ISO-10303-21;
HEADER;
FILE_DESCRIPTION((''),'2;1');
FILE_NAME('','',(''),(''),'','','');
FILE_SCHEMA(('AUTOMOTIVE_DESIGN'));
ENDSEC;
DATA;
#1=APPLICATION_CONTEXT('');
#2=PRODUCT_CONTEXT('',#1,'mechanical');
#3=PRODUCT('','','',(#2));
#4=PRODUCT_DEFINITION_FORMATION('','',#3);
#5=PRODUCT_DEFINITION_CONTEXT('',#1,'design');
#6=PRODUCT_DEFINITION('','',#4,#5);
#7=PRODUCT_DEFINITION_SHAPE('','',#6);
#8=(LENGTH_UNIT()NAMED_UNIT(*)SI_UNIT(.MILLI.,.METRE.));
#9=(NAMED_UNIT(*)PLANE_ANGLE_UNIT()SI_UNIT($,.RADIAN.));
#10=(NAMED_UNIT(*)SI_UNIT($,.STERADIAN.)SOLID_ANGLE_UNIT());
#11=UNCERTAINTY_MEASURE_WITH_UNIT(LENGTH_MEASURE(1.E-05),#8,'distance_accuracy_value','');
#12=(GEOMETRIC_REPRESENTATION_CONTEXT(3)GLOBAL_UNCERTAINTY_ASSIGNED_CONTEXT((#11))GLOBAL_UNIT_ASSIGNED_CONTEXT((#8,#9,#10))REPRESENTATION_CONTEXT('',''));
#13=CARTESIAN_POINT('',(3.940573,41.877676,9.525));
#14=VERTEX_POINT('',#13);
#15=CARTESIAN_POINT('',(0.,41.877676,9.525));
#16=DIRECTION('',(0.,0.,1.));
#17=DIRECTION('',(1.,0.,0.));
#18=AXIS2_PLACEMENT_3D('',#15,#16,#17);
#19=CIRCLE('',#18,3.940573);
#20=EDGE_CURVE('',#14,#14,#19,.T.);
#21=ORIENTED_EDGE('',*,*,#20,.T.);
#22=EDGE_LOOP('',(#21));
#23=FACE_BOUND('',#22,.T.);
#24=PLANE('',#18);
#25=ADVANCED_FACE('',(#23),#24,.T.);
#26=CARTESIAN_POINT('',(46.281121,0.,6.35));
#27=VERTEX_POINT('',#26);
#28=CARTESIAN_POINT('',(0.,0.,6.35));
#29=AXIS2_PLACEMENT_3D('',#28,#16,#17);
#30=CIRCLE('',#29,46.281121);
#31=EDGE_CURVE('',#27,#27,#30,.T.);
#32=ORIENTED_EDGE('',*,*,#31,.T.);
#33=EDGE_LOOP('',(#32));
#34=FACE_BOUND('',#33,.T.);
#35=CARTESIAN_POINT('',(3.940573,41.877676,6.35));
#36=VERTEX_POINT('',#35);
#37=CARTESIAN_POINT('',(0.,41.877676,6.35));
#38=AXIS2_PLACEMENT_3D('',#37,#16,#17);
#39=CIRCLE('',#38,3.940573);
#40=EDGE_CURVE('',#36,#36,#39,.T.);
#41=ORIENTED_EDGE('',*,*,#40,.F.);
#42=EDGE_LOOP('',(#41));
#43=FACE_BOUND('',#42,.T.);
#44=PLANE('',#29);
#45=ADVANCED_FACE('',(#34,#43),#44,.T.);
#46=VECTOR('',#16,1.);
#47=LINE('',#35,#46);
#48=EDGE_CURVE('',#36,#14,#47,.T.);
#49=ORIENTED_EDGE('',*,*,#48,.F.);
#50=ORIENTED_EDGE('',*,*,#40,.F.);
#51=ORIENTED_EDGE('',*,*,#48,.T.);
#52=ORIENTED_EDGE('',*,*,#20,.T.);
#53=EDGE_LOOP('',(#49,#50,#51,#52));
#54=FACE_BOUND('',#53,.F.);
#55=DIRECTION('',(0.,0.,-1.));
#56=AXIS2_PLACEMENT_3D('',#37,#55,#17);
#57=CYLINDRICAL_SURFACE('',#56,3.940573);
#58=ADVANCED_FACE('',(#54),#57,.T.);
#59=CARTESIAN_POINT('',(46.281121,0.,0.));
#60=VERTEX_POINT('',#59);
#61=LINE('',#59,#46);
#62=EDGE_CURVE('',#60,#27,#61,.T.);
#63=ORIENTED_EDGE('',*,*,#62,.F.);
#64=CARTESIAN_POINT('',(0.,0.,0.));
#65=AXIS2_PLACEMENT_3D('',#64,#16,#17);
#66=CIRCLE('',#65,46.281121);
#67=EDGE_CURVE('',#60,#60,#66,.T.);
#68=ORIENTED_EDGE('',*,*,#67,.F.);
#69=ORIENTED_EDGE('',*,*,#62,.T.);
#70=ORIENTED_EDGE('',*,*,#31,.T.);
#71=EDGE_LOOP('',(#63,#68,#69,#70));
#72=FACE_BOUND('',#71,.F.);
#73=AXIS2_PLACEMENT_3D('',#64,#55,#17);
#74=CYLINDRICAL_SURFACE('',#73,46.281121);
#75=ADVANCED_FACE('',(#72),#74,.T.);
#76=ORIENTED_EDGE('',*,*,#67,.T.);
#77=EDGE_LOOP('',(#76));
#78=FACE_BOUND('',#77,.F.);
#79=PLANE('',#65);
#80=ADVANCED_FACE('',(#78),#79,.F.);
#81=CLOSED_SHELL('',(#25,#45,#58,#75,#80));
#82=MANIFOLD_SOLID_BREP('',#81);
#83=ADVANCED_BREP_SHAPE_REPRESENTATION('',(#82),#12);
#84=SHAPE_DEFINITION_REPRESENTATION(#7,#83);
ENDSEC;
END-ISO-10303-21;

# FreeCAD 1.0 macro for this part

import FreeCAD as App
import Part
import Sketcher
Q = App.Units.Quantity

doc = App.newDocument("Part")
body = doc.addObject("PartDesign::Body", "Body")

# Sketch on XY plane
sketch1 = body.newObject("Sketcher::SketchObject", "Sketch")
sketch1.AttachmentSupport = (doc.getObject("XY_Plane"), [""])
sketch1.MapMode = "FlatFace"
sketch1.addGeometry(Part.Circle(App.Vector(0, 0, 0), App.Vector(0, 0, 1), 46.281121), False)
sketch1.addConstraint([
    Sketcher.Constraint("Coincident", 0, 3, -1, 1),
    Sketcher.Constraint("Diameter", 0, Q("92.562242 mm")),
])
pad1 = body.newObject("PartDesign::Pad", "Pad")
pad1.Profile = sketch1
pad1.Length = Q("0.25 in")

# Sketch on XY plane
sketch2 = body.newObject("Sketcher::SketchObject", "Sketch001")
sketch2.AttachmentSupport = (doc.getObject("XY_Plane"), [""])
sketch2.MapMode = "FlatFace"
sketch2.AttachmentOffset = App.Placement(App.Vector(0, 0, 0.25 * 25.4), App.Rotation())
sketch2.addGeometry(Part.Circle(App.Vector(0, 41.877676, 0), App.Vector(0, 0, 1), 3.940573), False)
sketch2.addConstraint([
    Sketcher.Constraint("PointOnObject", 0, 3, -2),
    Sketcher.Constraint("Diameter", 0, Q("7.881146 mm")),
    Sketcher.Constraint("DistanceY", -1, 1, 0, 3, Q("41.877676 mm")),
])
pad2 = body.newObject("PartDesign::Pad", "Pad001")
pad2.Profile = sketch2
pad2.Length = Q("0.125 in")

doc.recompute()
